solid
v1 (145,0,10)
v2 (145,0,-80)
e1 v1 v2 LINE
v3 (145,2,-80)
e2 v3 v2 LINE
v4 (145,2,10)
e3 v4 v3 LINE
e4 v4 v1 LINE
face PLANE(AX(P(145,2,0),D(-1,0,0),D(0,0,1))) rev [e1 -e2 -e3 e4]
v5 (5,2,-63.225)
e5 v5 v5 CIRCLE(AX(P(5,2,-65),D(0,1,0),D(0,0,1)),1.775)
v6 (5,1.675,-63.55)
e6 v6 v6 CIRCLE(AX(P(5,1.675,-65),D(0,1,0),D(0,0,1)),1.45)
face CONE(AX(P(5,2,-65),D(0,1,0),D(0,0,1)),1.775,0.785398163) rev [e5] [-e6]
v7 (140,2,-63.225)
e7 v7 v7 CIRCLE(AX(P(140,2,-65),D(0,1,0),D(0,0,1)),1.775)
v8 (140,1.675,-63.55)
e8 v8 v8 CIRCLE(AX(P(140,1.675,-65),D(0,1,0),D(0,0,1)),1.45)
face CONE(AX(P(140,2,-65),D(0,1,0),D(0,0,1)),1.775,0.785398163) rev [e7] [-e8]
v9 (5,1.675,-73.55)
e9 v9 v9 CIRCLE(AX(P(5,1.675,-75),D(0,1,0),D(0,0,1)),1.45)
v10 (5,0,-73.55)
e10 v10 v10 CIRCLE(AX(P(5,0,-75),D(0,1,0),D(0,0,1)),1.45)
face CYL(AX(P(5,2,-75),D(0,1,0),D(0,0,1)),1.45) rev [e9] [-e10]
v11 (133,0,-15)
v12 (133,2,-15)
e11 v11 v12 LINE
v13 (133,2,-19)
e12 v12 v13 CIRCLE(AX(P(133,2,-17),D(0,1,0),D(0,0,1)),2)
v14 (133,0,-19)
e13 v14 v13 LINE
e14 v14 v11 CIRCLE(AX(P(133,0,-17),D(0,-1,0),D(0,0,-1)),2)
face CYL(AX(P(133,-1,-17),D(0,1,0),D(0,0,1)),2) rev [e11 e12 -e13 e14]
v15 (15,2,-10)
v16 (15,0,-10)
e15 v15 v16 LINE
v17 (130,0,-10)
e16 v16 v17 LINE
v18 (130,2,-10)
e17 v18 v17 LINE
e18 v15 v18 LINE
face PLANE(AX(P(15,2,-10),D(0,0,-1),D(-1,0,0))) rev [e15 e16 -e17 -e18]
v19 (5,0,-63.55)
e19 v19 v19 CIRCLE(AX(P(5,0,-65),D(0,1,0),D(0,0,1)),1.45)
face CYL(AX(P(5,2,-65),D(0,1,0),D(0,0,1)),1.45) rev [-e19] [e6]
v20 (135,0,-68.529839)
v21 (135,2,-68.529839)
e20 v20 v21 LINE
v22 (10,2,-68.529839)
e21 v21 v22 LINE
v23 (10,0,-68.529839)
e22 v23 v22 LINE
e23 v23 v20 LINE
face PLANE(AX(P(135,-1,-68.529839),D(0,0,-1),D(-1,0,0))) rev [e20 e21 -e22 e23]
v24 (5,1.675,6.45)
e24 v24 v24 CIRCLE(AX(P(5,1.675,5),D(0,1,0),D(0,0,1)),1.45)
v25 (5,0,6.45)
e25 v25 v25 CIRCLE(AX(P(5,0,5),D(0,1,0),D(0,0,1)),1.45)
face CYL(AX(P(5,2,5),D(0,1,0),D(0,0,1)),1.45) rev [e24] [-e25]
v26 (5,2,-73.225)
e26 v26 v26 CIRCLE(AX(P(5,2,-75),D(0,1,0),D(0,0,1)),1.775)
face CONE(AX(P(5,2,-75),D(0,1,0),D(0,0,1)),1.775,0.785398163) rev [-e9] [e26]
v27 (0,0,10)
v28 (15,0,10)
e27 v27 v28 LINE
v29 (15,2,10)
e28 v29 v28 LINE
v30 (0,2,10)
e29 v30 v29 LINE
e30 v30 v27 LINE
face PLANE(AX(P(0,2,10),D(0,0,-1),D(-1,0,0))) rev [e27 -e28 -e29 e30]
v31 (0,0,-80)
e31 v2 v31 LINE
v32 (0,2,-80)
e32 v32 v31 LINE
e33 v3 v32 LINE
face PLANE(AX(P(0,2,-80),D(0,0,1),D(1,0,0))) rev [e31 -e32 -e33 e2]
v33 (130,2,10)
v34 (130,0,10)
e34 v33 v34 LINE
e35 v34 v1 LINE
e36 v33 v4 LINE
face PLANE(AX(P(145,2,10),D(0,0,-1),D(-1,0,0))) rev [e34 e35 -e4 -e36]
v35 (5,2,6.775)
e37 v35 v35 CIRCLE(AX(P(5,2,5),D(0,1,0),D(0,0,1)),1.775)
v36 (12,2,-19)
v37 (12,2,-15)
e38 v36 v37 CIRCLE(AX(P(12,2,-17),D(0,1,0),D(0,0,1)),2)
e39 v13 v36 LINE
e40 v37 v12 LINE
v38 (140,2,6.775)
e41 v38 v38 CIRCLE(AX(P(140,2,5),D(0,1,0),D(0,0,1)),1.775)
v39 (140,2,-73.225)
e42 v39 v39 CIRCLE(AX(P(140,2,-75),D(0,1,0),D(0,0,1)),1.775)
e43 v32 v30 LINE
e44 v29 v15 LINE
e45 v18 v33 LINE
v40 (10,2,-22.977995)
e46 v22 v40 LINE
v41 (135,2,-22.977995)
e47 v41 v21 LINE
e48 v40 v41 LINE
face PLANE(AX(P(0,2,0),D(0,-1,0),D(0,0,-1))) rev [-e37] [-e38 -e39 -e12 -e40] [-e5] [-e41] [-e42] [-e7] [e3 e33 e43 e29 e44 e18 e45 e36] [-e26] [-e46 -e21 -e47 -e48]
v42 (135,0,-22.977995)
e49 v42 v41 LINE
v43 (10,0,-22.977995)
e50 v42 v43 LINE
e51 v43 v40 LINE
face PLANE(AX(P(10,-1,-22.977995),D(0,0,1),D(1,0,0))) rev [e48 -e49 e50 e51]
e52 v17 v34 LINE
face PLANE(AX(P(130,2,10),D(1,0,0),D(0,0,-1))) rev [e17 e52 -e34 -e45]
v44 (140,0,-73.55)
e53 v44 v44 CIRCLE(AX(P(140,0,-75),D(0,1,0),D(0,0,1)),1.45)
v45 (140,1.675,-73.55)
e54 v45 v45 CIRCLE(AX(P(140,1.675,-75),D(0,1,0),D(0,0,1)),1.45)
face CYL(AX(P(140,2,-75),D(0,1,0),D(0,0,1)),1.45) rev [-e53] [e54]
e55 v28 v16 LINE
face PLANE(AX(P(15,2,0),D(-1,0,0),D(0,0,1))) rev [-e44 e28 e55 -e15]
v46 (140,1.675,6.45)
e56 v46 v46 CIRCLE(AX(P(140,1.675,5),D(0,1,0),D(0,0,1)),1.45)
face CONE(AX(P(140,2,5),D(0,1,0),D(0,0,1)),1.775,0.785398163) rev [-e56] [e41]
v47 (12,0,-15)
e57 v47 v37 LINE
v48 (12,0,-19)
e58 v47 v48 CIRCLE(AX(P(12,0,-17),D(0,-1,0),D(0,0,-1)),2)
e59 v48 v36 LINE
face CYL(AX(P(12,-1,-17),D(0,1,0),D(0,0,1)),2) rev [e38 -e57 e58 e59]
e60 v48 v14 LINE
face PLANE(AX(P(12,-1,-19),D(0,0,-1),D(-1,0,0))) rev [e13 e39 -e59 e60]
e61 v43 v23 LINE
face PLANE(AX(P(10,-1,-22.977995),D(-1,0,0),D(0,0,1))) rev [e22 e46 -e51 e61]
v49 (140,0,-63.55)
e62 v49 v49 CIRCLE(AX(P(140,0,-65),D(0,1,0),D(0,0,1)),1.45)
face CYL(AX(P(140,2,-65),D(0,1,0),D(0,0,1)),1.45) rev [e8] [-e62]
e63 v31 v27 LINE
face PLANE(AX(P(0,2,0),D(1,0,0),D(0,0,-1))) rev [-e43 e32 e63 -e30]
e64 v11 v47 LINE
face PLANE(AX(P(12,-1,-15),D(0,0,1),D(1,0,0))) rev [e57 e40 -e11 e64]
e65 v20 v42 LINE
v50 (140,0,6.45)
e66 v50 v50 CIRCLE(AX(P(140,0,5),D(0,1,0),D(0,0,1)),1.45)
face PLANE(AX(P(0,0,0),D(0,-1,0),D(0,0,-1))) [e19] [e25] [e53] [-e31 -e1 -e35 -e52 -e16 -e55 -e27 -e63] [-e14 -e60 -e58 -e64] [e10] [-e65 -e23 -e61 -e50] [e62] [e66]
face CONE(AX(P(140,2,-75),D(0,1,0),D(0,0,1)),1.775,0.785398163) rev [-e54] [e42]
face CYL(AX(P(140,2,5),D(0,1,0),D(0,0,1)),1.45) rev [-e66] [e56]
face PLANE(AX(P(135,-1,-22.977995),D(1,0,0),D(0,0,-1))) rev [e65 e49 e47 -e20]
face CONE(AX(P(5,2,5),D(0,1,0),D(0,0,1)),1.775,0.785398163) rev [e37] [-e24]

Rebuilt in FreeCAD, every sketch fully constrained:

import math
import FreeCAD as App
import Part
import Sketcher

doc = App.newDocument("Part")
body = doc.addObject("PartDesign::Body", "Body")

# Sketch on XZ plane
sketch1 = doc.addObject("Sketcher::SketchObject", "Sketch")
body.addObject(sketch1)
sketch1.AttachmentSupport = (doc.XZ_Plane, [""])
sketch1.MapMode = "FlatFace"
sketch1.addGeometry(Part.LineSegment(App.Vector(0, 10, 0), App.Vector(15, 10, 0)), False)
sketch1.addGeometry(Part.LineSegment(App.Vector(15, 10, 0), App.Vector(15, -10, 0)), False)
sketch1.addGeometry(Part.LineSegment(App.Vector(15, -10, 0), App.Vector(130, -10, 0)), False)
sketch1.addGeometry(Part.LineSegment(App.Vector(130, -10, 0), App.Vector(130, 10, 0)), False)
sketch1.addGeometry(Part.LineSegment(App.Vector(130, 10, 0), App.Vector(145, 10, 0)), False)
sketch1.addGeometry(Part.LineSegment(App.Vector(145, 10, 0), App.Vector(145, -80, 0)), False)
sketch1.addGeometry(Part.LineSegment(App.Vector(145, -80, 0), App.Vector(0, -80, 0)), False)
sketch1.addGeometry(Part.LineSegment(App.Vector(0, -80, 0), App.Vector(0, 10, 0)), False)
sketch1.addConstraint(Sketcher.Constraint("Coincident", 0, 2, 1, 1))
sketch1.addConstraint(Sketcher.Constraint("Coincident", 1, 2, 2, 1))
sketch1.addConstraint(Sketcher.Constraint("Coincident", 2, 2, 3, 1))
sketch1.addConstraint(Sketcher.Constraint("Coincident", 3, 2, 4, 1))
sketch1.addConstraint(Sketcher.Constraint("Coincident", 4, 2, 5, 1))
sketch1.addConstraint(Sketcher.Constraint("Coincident", 5, 2, 6, 1))
sketch1.addConstraint(Sketcher.Constraint("Coincident", 6, 2, 7, 1))
sketch1.addConstraint(Sketcher.Constraint("Coincident", 7, 2, 0, 1))
sketch1.addConstraint(Sketcher.Constraint("Horizontal", 0))
sketch1.addConstraint(Sketcher.Constraint("Vertical", 1))
sketch1.addConstraint(Sketcher.Constraint("Horizontal", 2))
sketch1.addConstraint(Sketcher.Constraint("Vertical", 3))
sketch1.addConstraint(Sketcher.Constraint("Horizontal", 4))
sketch1.addConstraint(Sketcher.Constraint("Vertical", 5))
sketch1.addConstraint(Sketcher.Constraint("Horizontal", 6))
sketch1.addConstraint(Sketcher.Constraint("Vertical", 7))
sketch1.addConstraint(Sketcher.Constraint("PointOnObject", 6, 2, -2))
sketch1.addConstraint(Sketcher.Constraint("Horizontal", 0, 2, 3, 2))
sketch1.addConstraint(Sketcher.Constraint("Equal", 0, 4))
sketch1.addConstraint(Sketcher.Constraint("DistanceX", 0, 1, 0, 2, 15.0))
sketch1.addConstraint(Sketcher.Constraint("DistanceX", 2, 1, 2, 2, 115.0))
sketch1.addConstraint(Sketcher.Constraint("DistanceY", 1, 2, 1, 1, 20.0))
sketch1.addConstraint(Sketcher.Constraint("DistanceY", 5, 2, 5, 1, 90.0))
sketch1.addConstraint(Sketcher.Constraint("DistanceY", -1, 1, 0, 2, 10.0))
pad1 = doc.addObject("PartDesign::Pad", "Pad")
body.addObject(pad1)
pad1.Profile = sketch1
pad1.Length = 2
pad1.Reversed = True

# Sketch on XZ plane
sketch2 = doc.addObject("Sketcher::SketchObject", "Sketch001")
body.addObject(sketch2)
sketch2.AttachmentSupport = (doc.XZ_Plane, [""])
sketch2.MapMode = "FlatFace"
sketch2.AttachmentOffset = App.Placement(App.Vector(0, 0, -2), App.Rotation())
sketch2.addGeometry(Part.Circle(App.Vector(5, -65, 0), App.Vector(0, 0, 1), 1.45), False)
sketch2.addGeometry(Part.Circle(App.Vector(5, -75, 0), App.Vector(0, 0, 1), 1.45), False)
sketch2.addGeometry(Part.Circle(App.Vector(140, -75, 0), App.Vector(0, 0, 1), 1.45), False)
sketch2.addGeometry(Part.Circle(App.Vector(140, 5, 0), App.Vector(0, 0, 1), 1.45), False)
sketch2.addGeometry(Part.Circle(App.Vector(5, 5, 0), App.Vector(0, 0, 1), 1.45), False)
sketch2.addGeometry(Part.Circle(App.Vector(140, -65, 0), App.Vector(0, 0, 1), 1.45), False)
sketch2.addConstraint(Sketcher.Constraint("Equal", 0, 1))
sketch2.addConstraint(Sketcher.Constraint("Equal", 1, 2))
sketch2.addConstraint(Sketcher.Constraint("Equal", 2, 3))
sketch2.addConstraint(Sketcher.Constraint("Equal", 3, 4))
sketch2.addConstraint(Sketcher.Constraint("Equal", 4, 5))
sketch2.addConstraint(Sketcher.Constraint("Horizontal", 1, 3, 2, 3))
sketch2.addConstraint(Sketcher.Constraint("Horizontal", 3, 3, 4, 3))
sketch2.addConstraint(Sketcher.Constraint("Horizontal", 0, 3, 5, 3))
sketch2.addConstraint(Sketcher.Constraint("Vertical", 0, 3, 1, 3))
sketch2.addConstraint(Sketcher.Constraint("Vertical", 2, 3, 3, 3))
sketch2.addConstraint(Sketcher.Constraint("Vertical", 1, 3, 4, 3))
sketch2.addConstraint(Sketcher.Constraint("Vertical", 3, 3, 5, 3))
sketch2.addConstraint(Sketcher.Constraint("Diameter", 0, 2.9))
sketch2.addConstraint(Sketcher.Constraint("DistanceX", -1, 1, 0, 3, 5.0))
sketch2.addConstraint(Sketcher.Constraint("DistanceY", 0, 3, -1, 1, 65.0))
sketch2.addConstraint(Sketcher.Constraint("DistanceY", 1, 3, -1, 1, 75.0))
sketch2.addConstraint(Sketcher.Constraint("DistanceX", -1, 1, 2, 3, 140.0))
sketch2.addConstraint(Sketcher.Constraint("DistanceY", -1, 1, 3, 3, 5.0))
doc.recompute()
hole = doc.addObject("PartDesign::Hole", "Hole")
body.addObject(hole)
hole.Profile = sketch2
hole.ThreadType = "None"
hole.Diameter = 2.9
hole.DepthType = "ThroughAll"
hole.HoleCutType = "Countersink"
hole.HoleCutDiameter = 3.55
hole.HoleCutCountersinkAngle = 90
hole.Reversed = True

# Sketch on XZ plane
sketch3 = doc.addObject("Sketcher::SketchObject", "Sketch002")
body.addObject(sketch3)
sketch3.AttachmentSupport = (doc.XZ_Plane, [""])
sketch3.MapMode = "FlatFace"
sketch3.AttachmentOffset = App.Placement(App.Vector(0, 0, -2), App.Rotation())
sketch3.addGeometry(Part.LineSegment(App.Vector(133, -19, 0), App.Vector(12, -19, 0)), False)
sketch3.addGeometry(Part.ArcOfCircle(Part.Circle(App.Vector(12, -17, 0), App.Vector(0, 0, 1), 2), math.radians(90), math.radians(270)), False)
sketch3.addGeometry(Part.LineSegment(App.Vector(12, -15, 0), App.Vector(133, -15, 0)), False)
sketch3.addGeometry(Part.ArcOfCircle(Part.Circle(App.Vector(133, -17, 0), App.Vector(0, 0, 1), 2), math.radians(-90), math.radians(90)), False)
sketch3.addConstraint(Sketcher.Constraint("Tangent", 0, 2, 1, 2))
sketch3.addConstraint(Sketcher.Constraint("Tangent", 1, 1, 2, 1))
sketch3.addConstraint(Sketcher.Constraint("Tangent", 2, 2, 3, 2))
sketch3.addConstraint(Sketcher.Constraint("Tangent", 3, 1, 0, 1))
sketch3.addConstraint(Sketcher.Constraint("Horizontal", 0))
sketch3.addConstraint(Sketcher.Constraint("Horizontal", 2))
sketch3.addConstraint(Sketcher.Constraint("Radius", 1, 2.0))
sketch3.addConstraint(Sketcher.Constraint("DistanceX", 0, 2, 0, 1, 121.0))
sketch3.addConstraint(Sketcher.Constraint("DistanceX", -1, 1, 1, 3, 12.0))
sketch3.addConstraint(Sketcher.Constraint("DistanceY", 1, 3, -1, 1, 17.0))
pocket1 = doc.addObject("PartDesign::Pocket", "Pocket")
body.addObject(pocket1)
pocket1.Profile = sketch3
pocket1.Length = 3
pocket1.Reversed = True

# Sketch on XZ plane
sketch4 = doc.addObject("Sketcher::SketchObject", "Sketch003")
body.addObject(sketch4)
sketch4.AttachmentSupport = (doc.XZ_Plane, [""])
sketch4.MapMode = "FlatFace"
sketch4.AttachmentOffset = App.Placement(App.Vector(0, 0, -2), App.Rotation())
sketch4.addGeometry(Part.LineSegment(App.Vector(10, -68.529839, 0), App.Vector(10, -22.977995, 0)), False)
sketch4.addGeometry(Part.LineSegment(App.Vector(10, -22.977995, 0), App.Vector(135, -22.977995, 0)), False)
sketch4.addGeometry(Part.LineSegment(App.Vector(135, -22.977995, 0), App.Vector(135, -68.529839, 0)), False)
sketch4.addGeometry(Part.LineSegment(App.Vector(135, -68.529839, 0), App.Vector(10, -68.529839, 0)), False)
sketch4.addConstraint(Sketcher.Constraint("Coincident", 0, 2, 1, 1))
sketch4.addConstraint(Sketcher.Constraint("Coincident", 1, 2, 2, 1))
sketch4.addConstraint(Sketcher.Constraint("Coincident", 2, 2, 3, 1))
sketch4.addConstraint(Sketcher.Constraint("Coincident", 3, 2, 0, 1))
sketch4.addConstraint(Sketcher.Constraint("Vertical", 0))
sketch4.addConstraint(Sketcher.Constraint("Horizontal", 1))
sketch4.addConstraint(Sketcher.Constraint("Vertical", 2))
sketch4.addConstraint(Sketcher.Constraint("Horizontal", 3))
sketch4.addConstraint(Sketcher.Constraint("DistanceX", 1, 1, 1, 2, 125.0))
sketch4.addConstraint(Sketcher.Constraint("DistanceX", -1, 1, 0, 2, 10.0))
sketch4.addConstraint(Sketcher.Constraint("DistanceY", 0, 1, 0, 2, 45.551844))
sketch4.addConstraint(Sketcher.Constraint("DistanceY", 2, 2, -1, 1, 68.529839))
pocket2 = doc.addObject("PartDesign::Pocket", "Pocket001")
body.addObject(pocket2)
pocket2.Profile = sketch4
pocket2.Length = 3
pocket2.Reversed = True

doc.recompute()
